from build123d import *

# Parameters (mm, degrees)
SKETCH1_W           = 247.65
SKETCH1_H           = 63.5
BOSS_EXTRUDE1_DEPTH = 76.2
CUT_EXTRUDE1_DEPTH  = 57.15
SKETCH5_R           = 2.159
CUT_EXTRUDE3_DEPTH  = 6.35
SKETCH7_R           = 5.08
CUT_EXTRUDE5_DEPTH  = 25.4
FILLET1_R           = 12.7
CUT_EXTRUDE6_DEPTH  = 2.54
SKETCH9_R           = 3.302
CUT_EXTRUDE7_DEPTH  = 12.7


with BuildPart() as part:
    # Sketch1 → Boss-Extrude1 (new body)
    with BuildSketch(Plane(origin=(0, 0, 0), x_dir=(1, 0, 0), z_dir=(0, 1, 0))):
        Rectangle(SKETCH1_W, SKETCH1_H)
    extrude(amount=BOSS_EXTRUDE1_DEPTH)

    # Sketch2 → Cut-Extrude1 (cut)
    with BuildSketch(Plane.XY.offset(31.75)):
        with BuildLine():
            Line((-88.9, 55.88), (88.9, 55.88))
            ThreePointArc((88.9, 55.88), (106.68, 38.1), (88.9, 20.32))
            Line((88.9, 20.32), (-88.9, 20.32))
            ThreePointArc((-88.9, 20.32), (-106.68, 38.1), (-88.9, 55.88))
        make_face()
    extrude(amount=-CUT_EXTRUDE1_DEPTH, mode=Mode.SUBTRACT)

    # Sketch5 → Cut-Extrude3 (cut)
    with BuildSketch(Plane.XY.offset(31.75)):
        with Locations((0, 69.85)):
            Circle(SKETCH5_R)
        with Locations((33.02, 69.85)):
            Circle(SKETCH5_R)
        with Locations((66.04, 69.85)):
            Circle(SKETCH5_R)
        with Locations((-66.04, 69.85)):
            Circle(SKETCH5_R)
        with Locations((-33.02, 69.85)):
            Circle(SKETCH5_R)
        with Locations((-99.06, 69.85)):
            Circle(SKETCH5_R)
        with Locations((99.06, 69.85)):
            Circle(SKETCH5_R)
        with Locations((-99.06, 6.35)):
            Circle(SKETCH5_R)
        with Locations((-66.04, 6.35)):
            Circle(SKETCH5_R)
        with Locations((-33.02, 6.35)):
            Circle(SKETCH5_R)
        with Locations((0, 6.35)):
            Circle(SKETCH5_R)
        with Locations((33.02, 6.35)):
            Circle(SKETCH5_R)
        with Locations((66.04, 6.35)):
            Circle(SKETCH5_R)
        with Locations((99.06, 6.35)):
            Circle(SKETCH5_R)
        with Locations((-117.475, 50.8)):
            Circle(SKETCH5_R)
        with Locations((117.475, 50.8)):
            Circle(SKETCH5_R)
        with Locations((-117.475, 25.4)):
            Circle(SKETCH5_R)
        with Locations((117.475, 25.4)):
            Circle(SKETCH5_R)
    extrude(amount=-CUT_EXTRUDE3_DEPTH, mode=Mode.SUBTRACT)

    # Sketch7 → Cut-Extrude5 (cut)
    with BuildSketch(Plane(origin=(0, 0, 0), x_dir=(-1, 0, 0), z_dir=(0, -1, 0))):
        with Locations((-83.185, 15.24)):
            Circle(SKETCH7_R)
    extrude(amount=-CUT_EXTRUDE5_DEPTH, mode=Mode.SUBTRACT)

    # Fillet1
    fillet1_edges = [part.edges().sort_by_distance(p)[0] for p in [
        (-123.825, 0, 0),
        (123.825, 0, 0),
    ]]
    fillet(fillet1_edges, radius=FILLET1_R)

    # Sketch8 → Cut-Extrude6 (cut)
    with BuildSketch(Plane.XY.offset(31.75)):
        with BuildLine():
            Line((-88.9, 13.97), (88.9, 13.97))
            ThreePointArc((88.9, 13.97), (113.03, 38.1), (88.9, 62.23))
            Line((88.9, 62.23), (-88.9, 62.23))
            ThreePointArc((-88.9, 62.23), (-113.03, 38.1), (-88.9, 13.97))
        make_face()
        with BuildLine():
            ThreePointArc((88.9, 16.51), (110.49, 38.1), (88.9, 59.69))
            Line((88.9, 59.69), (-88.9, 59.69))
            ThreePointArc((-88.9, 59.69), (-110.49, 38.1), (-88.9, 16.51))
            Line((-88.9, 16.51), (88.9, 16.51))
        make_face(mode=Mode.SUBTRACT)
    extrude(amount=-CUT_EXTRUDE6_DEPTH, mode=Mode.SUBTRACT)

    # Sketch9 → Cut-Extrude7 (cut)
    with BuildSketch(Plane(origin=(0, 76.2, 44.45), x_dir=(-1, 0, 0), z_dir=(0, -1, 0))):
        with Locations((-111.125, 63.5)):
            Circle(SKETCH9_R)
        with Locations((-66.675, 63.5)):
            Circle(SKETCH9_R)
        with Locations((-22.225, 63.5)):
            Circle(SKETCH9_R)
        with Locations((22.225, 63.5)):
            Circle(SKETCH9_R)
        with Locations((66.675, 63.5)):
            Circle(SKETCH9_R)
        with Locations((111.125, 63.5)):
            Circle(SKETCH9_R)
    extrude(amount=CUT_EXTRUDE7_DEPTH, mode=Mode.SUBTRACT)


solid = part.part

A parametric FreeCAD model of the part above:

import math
import FreeCAD as App
import Part
import Sketcher
from FreeCAD import Vector
Q = App.Units.Quantity


def edges_at(feature, points):
    """Names of the edges that pass closest to the given points."""
    edges = feature.Shape.Edges
    near = lambda p: min(range(len(edges)), key=lambda i: edges[i].distToShape(Part.Vertex(*p))[0])
    return sorted({f"Edge{near(p) + 1}" for p in points})

doc = App.newDocument("Part")
params = doc.addObject("Spreadsheet::Sheet", "Params")
for row, (alias, value) in enumerate([
    ("sketch1_height", "2.5 in"),
    ("sketch1_width", "9.75 in"),
    ("pad1_length", "3 in"),
    ("sketch2_radius", "0.7 in"),
    ("sketch2_width", "7 in"),
    ("pocket1_length", "2.25 in"),
    ("sketch3_diameter", "0.17 in"),
    ("pocket2_length", "0.25 in"),
    ("sketch4_diameter", "0.4 in"),
    ("pocket3_length", "1 in"),
    ("fillet_radius", "0.5 in"),
    ("sketch5_width", "7 in"),
    ("sketch5_radius", "0.95 in"),
    ("sketch5_radius2", "0.85 in"),
    ("pocket4_length", "0.1 in"),
    ("sketch6_diameter", "0.26 in"),
    ("pocket5_length", "0.5 in"),
], start=1):
    params.set(f"A{row}", alias)
    params.set(f"B{row}", "=" + value)
    params.setAlias(f"B{row}", alias)

body = doc.addObject("PartDesign::Body", "Body")

# Sketch on XZ plane
sketch1 = doc.addObject("Sketcher::SketchObject", "Sketch")
body.addObject(sketch1)
sketch1.AttachmentSupport = (doc.XZ_Plane, [""])
sketch1.MapMode = "FlatFace"
sketch1.addGeometry([
    Part.LineSegment(Vector(-123.825, -31.75, 0), Vector(-123.825, 31.75, 0)),
    Part.LineSegment(Vector(-123.825, 31.75, 0), Vector(123.825, 31.75, 0)),
    Part.LineSegment(Vector(123.825, 31.75, 0), Vector(123.825, -31.75, 0)),
    Part.LineSegment(Vector(123.825, -31.75, 0), Vector(-123.825, -31.75, 0)),
], False)
sketch1.addConstraint([
    Sketcher.Constraint("Coincident", 0, 2, 1, 1),
    Sketcher.Constraint("Coincident", 1, 2, 2, 1),
    Sketcher.Constraint("Coincident", 2, 2, 3, 1),
    Sketcher.Constraint("Coincident", 3, 2, 0, 1),
    Sketcher.Constraint("Vertical", 0),
    Sketcher.Constraint("Horizontal", 1),
    Sketcher.Constraint("Vertical", 2),
    Sketcher.Constraint("Horizontal", 3),
    Sketcher.Constraint("Symmetric", 0, 2, 2, 2, -1, 1),
    Sketcher.Constraint("DistanceY", 0, 1, 0, 2, Q("2.5 in")),
    Sketcher.Constraint("DistanceX", 1, 1, 1, 2, Q("9.75 in")),
])
sketch1.setExpression("Constraints[9]", "Params.sketch1_height")
sketch1.setExpression("Constraints[10]", "Params.sketch1_width")
pad1 = doc.addObject("PartDesign::Pad", "Pad")
body.addObject(pad1)
pad1.Profile = sketch1
pad1.setExpression("Length", "Params.pad1_length")
pad1.Reversed = True

# Sketch on XY plane
sketch2 = doc.addObject("Sketcher::SketchObject", "Sketch001")
body.addObject(sketch2)
sketch2.AttachmentSupport = (doc.XY_Plane, [""])
sketch2.MapMode = "FlatFace"
sketch2.AttachmentOffset = App.Placement(Vector(0, 0, 1.25 * 25.4), App.Rotation())
sketch2.addGeometry([
    Part.LineSegment(Vector(88.9, 55.88, 0), Vector(-88.9, 55.88, 0)),
    Part.ArcOfCircle(Part.Circle(Vector(-88.9, 38.1, 0), Vector(0, 0, 1), 17.78), math.radians(90), math.radians(270)),
    Part.LineSegment(Vector(-88.9, 20.32, 0), Vector(88.9, 20.32, 0)),
    Part.ArcOfCircle(Part.Circle(Vector(88.9, 38.1, 0), Vector(0, 0, 1), 17.78), math.radians(-90), math.radians(90)),
], False)
sketch2.addConstraint([
    Sketcher.Constraint("Tangent", 0, 2, 1, 1),
    Sketcher.Constraint("Tangent", 1, 2, 2, 1),
    Sketcher.Constraint("Tangent", 2, 2, 3, 1),
    Sketcher.Constraint("Tangent", 3, 2, 0, 1),
    Sketcher.Constraint("Horizontal", 0),
    Sketcher.Constraint("Horizontal", 2),
    Sketcher.Constraint("Radius", 1, Q("0.7 in")),
    Sketcher.Constraint("DistanceX", 0, 2, 0, 1, Q("7 in")),
    Sketcher.Constraint("DistanceX", 1, 3, -1, 1, Q("3.5 in")),
    Sketcher.Constraint("DistanceY", -1, 1, 1, 3, Q("1.5 in")),
])
sketch2.setExpression("Constraints[6]", "Params.sketch2_radius")
sketch2.setExpression("Constraints[7]", "Params.sketch2_width")
pocket1 = doc.addObject("PartDesign::Pocket", "Pocket")
body.addObject(pocket1)
pocket1.Profile = sketch2
pocket1.setExpression("Length", "Params.pocket1_length")

# Sketch on XY plane
sketch3 = doc.addObject("Sketcher::SketchObject", "Sketch002")
body.addObject(sketch3)
sketch3.AttachmentSupport = (doc.XY_Plane, [""])
sketch3.MapMode = "FlatFace"
sketch3.AttachmentOffset = App.Placement(Vector(0, 0, 1.25 * 25.4), App.Rotation())
sketch3.addGeometry([
    Part.Circle(Vector(0, 69.85, 0), Vector(0, 0, 1), 2.159),  # 0
    Part.Circle(Vector(33.02, 69.85, 0), Vector(0, 0, 1), 2.159),  # 1
    Part.Circle(Vector(66.04, 69.85, 0), Vector(0, 0, 1), 2.159),  # 2
    Part.Circle(Vector(-66.04, 69.85, 0), Vector(0, 0, 1), 2.159),  # 3
    Part.Circle(Vector(-33.02, 69.85, 0), Vector(0, 0, 1), 2.159),  # 4
    Part.Circle(Vector(-99.06, 69.85, 0), Vector(0, 0, 1), 2.159),  # 5
    Part.Circle(Vector(99.06, 69.85, 0), Vector(0, 0, 1), 2.159),  # 6
    Part.Circle(Vector(-99.06, 6.35, 0), Vector(0, 0, 1), 2.159),  # 7
    Part.Circle(Vector(-66.04, 6.35, 0), Vector(0, 0, 1), 2.159),  # 8
    Part.Circle(Vector(-33.02, 6.35, 0), Vector(0, 0, 1), 2.159),  # 9
    Part.Circle(Vector(0, 6.35, 0), Vector(0, 0, 1), 2.159),  # 10
    Part.Circle(Vector(33.02, 6.35, 0), Vector(0, 0, 1), 2.159),  # 11
    Part.Circle(Vector(66.04, 6.35, 0), Vector(0, 0, 1), 2.159),  # 12
    Part.Circle(Vector(99.06, 6.35, 0), Vector(0, 0, 1), 2.159),  # 13
    Part.Circle(Vector(-117.475, 50.8, 0), Vector(0, 0, 1), 2.159),  # 14
    Part.Circle(Vector(117.475, 50.8, 0), Vector(0, 0, 1), 2.159),  # 15
    Part.Circle(Vector(-117.475, 25.4, 0), Vector(0, 0, 1), 2.159),  # 16
    Part.Circle(Vector(117.475, 25.4, 0), Vector(0, 0, 1), 2.159),  # 17
], False)
sketch3.addConstraint([
    Sketcher.Constraint("Equal", 0, 1),
    Sketcher.Constraint("Equal", 1, 2),
    Sketcher.Constraint("Equal", 2, 3),
    Sketcher.Constraint("Equal", 3, 4),
    Sketcher.Constraint("Equal", 4, 5),
    Sketcher.Constraint("Equal", 5, 6),
    Sketcher.Constraint("Equal", 6, 7),
    Sketcher.Constraint("Equal", 7, 8),
    Sketcher.Constraint("Equal", 8, 9),
    Sketcher.Constraint("Equal", 9, 10),
    Sketcher.Constraint("Equal", 10, 11),
    Sketcher.Constraint("Equal", 11, 12),
    Sketcher.Constraint("Equal", 12, 13),
    Sketcher.Constraint("Equal", 13, 14),
    Sketcher.Constraint("Equal", 14, 15),
    Sketcher.Constraint("Equal", 15, 16),
    Sketcher.Constraint("Equal", 16, 17),
    Sketcher.Constraint("Symmetric", 2, 3, 3, 3, -2),
    Sketcher.Constraint("Symmetric", 1, 3, 4, 3, -2),
    Sketcher.Constraint("Symmetric", 5, 3, 6, 3, -2),
    Sketcher.Constraint("Symmetric", 9, 3, 11, 3, -2),
    Sketcher.Constraint("Symmetric", 8, 3, 12, 3, -2),
    Sketcher.Constraint("Symmetric", 7, 3, 13, 3, -2),
    Sketcher.Constraint("Symmetric", 14, 3, 15, 3, -2),
    Sketcher.Constraint("Symmetric", 16, 3, 17, 3, -2),
    Sketcher.Constraint("PointOnObject", 0, 3, -2),
    Sketcher.Constraint("PointOnObject", 10, 3, -2),
    Sketcher.Constraint("Horizontal", 0, 3, 1, 3),
    Sketcher.Constraint("Horizontal", 1, 3, 2, 3),
    Sketcher.Constraint("Horizontal", 4, 3, 5, 3),
    Sketcher.Constraint("Horizontal", 7, 3, 8, 3),
    Sketcher.Constraint("Horizontal", 8, 3, 9, 3),
    Sketcher.Constraint("Horizontal", 9, 3, 10, 3),
    Sketcher.Constraint("Vertical", 5, 3, 7, 3),
    Sketcher.Constraint("Vertical", 3, 3, 8, 3),
    Sketcher.Constraint("Vertical", 4, 3, 9, 3),
    Sketcher.Constraint("Vertical", 14, 3, 16, 3),
    Sketcher.Constraint("Diameter", 0, Q("0.17 in")),
    Sketcher.Constraint("DistanceY", -1, 1, 14, 3, Q("2 in")),
    Sketcher.Constraint("DistanceY", -1, 1, 16, 3, Q("1 in")),
    Sketcher.Constraint("DistanceX", -1, 1, 1, 3, Q("1.3 in")),
    Sketcher.Constraint("DistanceX", -1, 1, 2, 3, Q("2.6 in")),
    Sketcher.Constraint("DistanceX", 5, 3, -1, 1, Q("3.9 in")),
    Sketcher.Constraint("DistanceY", 7, 3, 5, 3, Q("2.5 in")),
    Sketcher.Constraint("DistanceY", -1, 1, 0, 3, Q("2.75 in")),
    Sketcher.Constraint("DistanceX", 14, 3, -1, 1, Q("4.625 in")),
])
sketch3.setExpression("Constraints[37]", "Params.sketch3_diameter")
pocket2 = doc.addObject("PartDesign::Pocket", "Pocket001")
body.addObject(pocket2)
pocket2.Profile = sketch3
pocket2.setExpression("Length", "Params.pocket2_length")

# Sketch on XZ plane
sketch4 = doc.addObject("Sketcher::SketchObject", "Sketch003")
body.addObject(sketch4)
sketch4.AttachmentSupport = (doc.XZ_Plane, [""])
sketch4.MapMode = "FlatFace"
sketch4.addGeometry(Part.Circle(Vector(83.185, -15.24, 0), Vector(0, 0, 1), 5.08), False)
sketch4.addConstraint([
    Sketcher.Constraint("Diameter", 0, Q("0.4 in")),
    Sketcher.Constraint("DistanceY", 0, 3, -1, 1, Q("0.6 in")),
    Sketcher.Constraint("DistanceX", -1, 1, 0, 3, Q("3.275 in")),
])
sketch4.setExpression("Constraints[0]", "Params.sketch4_diameter")
pocket3 = doc.addObject("PartDesign::Pocket", "Pocket002")
body.addObject(pocket3)
pocket3.Profile = sketch4
pocket3.setExpression("Length", "Params.pocket3_length")
doc.recompute()

fillet = doc.addObject("PartDesign::Fillet", "Fillet")
body.addObject(fillet)
fillet.Base = (pocket3, edges_at(pocket3, [(-123.825, 0, 0), (123.825, 0, 0)]))
fillet.setExpression("Radius", "Params.fillet_radius")

# Sketch on XY plane
sketch5 = doc.addObject("Sketcher::SketchObject", "Sketch004")
body.addObject(sketch5)
sketch5.AttachmentSupport = (doc.XY_Plane, [""])
sketch5.MapMode = "FlatFace"
sketch5.AttachmentOffset = App.Placement(Vector(0, 0, 1.25 * 25.4), App.Rotation())
sketch5.addGeometry([
    Part.LineSegment(Vector(-88.9, 13.97, 0), Vector(88.9, 13.97, 0)),  # 0
    Part.ArcOfCircle(Part.Circle(Vector(88.9, 38.1, 0), Vector(0, 0, 1), 24.13), math.radians(-90), math.radians(90)),  # 1
    Part.LineSegment(Vector(88.9, 62.23, 0), Vector(-88.9, 62.23, 0)),  # 2
    Part.ArcOfCircle(Part.Circle(Vector(-88.9, 38.1, 0), Vector(0, 0, 1), 24.13), math.radians(90), math.radians(270)),  # 3
    Part.ArcOfCircle(Part.Circle(Vector(88.9, 38.1, 0), Vector(0, 0, 1), 21.59), math.radians(-90), math.radians(90)),  # 4
    Part.LineSegment(Vector(88.9, 16.51, 0), Vector(-88.9, 16.51, 0)),  # 5
    Part.ArcOfCircle(Part.Circle(Vector(-88.9, 38.1, 0), Vector(0, 0, 1), 21.59), math.radians(90), math.radians(270)),  # 6
    Part.LineSegment(Vector(-88.9, 59.69, 0), Vector(88.9, 59.69, 0)),  # 7
], False)
sketch5.addConstraint([
    Sketcher.Constraint("Tangent", 0, 2, 1, 1),
    Sketcher.Constraint("Tangent", 1, 2, 2, 1),
    Sketcher.Constraint("Tangent", 2, 2, 3, 1),
    Sketcher.Constraint("Tangent", 3, 2, 0, 1),
    Sketcher.Constraint("Tangent", 4, 1, 5, 1),
    Sketcher.Constraint("Tangent", 5, 2, 6, 2),
    Sketcher.Constraint("Tangent", 6, 1, 7, 1),
    Sketcher.Constraint("Tangent", 7, 2, 4, 2),
    Sketcher.Constraint("Horizontal", 0),
    Sketcher.Constraint("Horizontal", 2),
    Sketcher.Constraint("Horizontal", 5),
    Sketcher.Constraint("Horizontal", 7),
    Sketcher.Constraint("Coincident", 4, 3, 1, 3),
    Sketcher.Constraint("Vertical", 6, 3, 2, 2),
    Sketcher.Constraint("DistanceX", 0, 1, 0, 2, Q("7 in")),
    Sketcher.Constraint("Radius", 1, Q("0.95 in")),
    Sketcher.Constraint("Radius", 4, Q("0.85 in")),
    Sketcher.Constraint("DistanceX", -1, 1, 1, 3, Q("3.5 in")),
    Sketcher.Constraint("DistanceY", -1, 1, 1, 3, Q("1.5 in")),
])
sketch5.setExpression("Constraints[14]", "Params.sketch5_width")
sketch5.setExpression("Constraints[15]", "Params.sketch5_radius")
sketch5.setExpression("Constraints[16]", "Params.sketch5_radius2")
pocket4 = doc.addObject("PartDesign::Pocket", "Pocket003")
body.addObject(pocket4)
pocket4.Profile = sketch5
pocket4.setExpression("Length", "Params.pocket4_length")

# Sketch on XZ plane
sketch6 = doc.addObject("Sketcher::SketchObject", "Sketch005")
body.addObject(sketch6)
sketch6.AttachmentSupport = (doc.XZ_Plane, [""])
sketch6.MapMode = "FlatFace"
sketch6.AttachmentOffset = App.Placement(Vector(0, 0, -3 * 25.4), App.Rotation())
sketch6.addGeometry([
    Part.Circle(Vector(111.125, -19.05, 0), Vector(0, 0, 1), 3.302),  # 0
    Part.Circle(Vector(66.675, -19.05, 0), Vector(0, 0, 1), 3.302),  # 1
    Part.Circle(Vector(22.225, -19.05, 0), Vector(0, 0, 1), 3.302),  # 2
    Part.Circle(Vector(-22.225, -19.05, 0), Vector(0, 0, 1), 3.302),  # 3
    Part.Circle(Vector(-66.675, -19.05, 0), Vector(0, 0, 1), 3.302),  # 4
    Part.Circle(Vector(-111.125, -19.05, 0), Vector(0, 0, 1), 3.302),  # 5
], False)
sketch6.addConstraint([
    Sketcher.Constraint("Equal", 0, 1),
    Sketcher.Constraint("Equal", 1, 2),
    Sketcher.Constraint("Equal", 2, 3),
    Sketcher.Constraint("Equal", 3, 4),
    Sketcher.Constraint("Equal", 4, 5),
    Sketcher.Constraint("Symmetric", 2, 3, 3, 3, -2),
    Sketcher.Constraint("Symmetric", 1, 3, 4, 3, -2),
    Sketcher.Constraint("Symmetric", 0, 3, 5, 3, -2),
    Sketcher.Constraint("Horizontal", 0, 3, 1, 3),
    Sketcher.Constraint("Horizontal", 1, 3, 2, 3),
    Sketcher.Constraint("Diameter", 0, Q("0.26 in")),
    Sketcher.Constraint("DistanceX", 4, 3, 0, 3, Q("7 in")),
    Sketcher.Constraint("DistanceX", 2, 3, 0, 3, Q("3.5 in")),
    Sketcher.Constraint("DistanceY", 0, 3, -1, 1, Q("0.75 in")),
    Sketcher.Constraint("DistanceX", 1, 3, 0, 3, Q("1.75 in")),
])
sketch6.setExpression("Constraints[10]", "Params.sketch6_diameter")
pocket5 = doc.addObject("PartDesign::Pocket", "Pocket004")
body.addObject(pocket5)
pocket5.Profile = sketch6
pocket5.setExpression("Length", "Params.pocket5_length")
pocket5.Reversed = True

doc.recompute()
